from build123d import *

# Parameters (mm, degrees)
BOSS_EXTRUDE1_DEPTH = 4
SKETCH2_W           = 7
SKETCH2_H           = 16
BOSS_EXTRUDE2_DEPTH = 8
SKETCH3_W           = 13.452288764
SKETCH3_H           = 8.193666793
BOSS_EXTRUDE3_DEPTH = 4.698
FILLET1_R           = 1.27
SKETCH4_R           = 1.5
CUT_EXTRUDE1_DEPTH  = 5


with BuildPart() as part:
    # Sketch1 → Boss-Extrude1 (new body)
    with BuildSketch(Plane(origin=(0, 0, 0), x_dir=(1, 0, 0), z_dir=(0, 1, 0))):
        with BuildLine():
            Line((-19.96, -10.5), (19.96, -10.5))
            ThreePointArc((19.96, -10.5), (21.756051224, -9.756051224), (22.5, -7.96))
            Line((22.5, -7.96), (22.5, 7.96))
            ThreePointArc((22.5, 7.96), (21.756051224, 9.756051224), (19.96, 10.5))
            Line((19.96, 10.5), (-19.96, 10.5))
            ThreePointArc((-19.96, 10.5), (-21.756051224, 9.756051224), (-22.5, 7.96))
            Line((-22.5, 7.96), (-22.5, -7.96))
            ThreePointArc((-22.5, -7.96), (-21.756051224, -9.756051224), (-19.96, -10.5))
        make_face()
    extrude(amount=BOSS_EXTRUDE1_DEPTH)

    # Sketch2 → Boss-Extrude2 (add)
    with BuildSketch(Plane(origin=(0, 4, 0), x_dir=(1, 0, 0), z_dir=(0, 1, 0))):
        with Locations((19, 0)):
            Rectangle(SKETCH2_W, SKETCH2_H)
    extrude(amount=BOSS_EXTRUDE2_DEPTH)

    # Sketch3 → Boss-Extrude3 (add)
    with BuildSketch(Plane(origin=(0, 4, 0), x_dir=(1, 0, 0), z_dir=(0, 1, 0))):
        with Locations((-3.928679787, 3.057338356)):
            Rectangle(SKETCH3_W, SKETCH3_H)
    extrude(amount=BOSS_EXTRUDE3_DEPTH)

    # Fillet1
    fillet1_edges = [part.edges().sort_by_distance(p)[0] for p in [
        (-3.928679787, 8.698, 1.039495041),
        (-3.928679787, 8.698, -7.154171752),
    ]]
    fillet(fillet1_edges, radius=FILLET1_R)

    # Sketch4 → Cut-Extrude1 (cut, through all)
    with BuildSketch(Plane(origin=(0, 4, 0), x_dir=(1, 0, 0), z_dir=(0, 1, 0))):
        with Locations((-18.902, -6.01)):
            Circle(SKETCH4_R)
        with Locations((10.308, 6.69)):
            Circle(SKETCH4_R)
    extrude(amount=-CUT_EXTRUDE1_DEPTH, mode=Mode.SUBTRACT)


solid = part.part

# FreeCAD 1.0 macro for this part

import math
import FreeCAD as App
import Part
import Sketcher
from FreeCAD import Vector


def edges_at(feature, points):
    """Names of the edges that pass closest to the given points."""
    edges = feature.Shape.Edges
    near = lambda p: min(range(len(edges)), key=lambda i: edges[i].distToShape(Part.Vertex(*p))[0])
    return sorted({f"Edge{near(p) + 1}" for p in points})


def add_polygon(sketch, points):
    """Adds a closed chain of lines whose ends are joined by coincident constraints."""
    first, n = sketch.GeometryCount, len(points)
    for a, b in zip(points, points[1:] + points[:1]):
        sketch.addGeometry(Part.LineSegment(App.Vector(*a, 0), App.Vector(*b, 0)), False)
    for i in range(n):
        sketch.addConstraint(Sketcher.Constraint("Coincident", first + i, 2, first + (i + 1) % n, 1))

doc = App.newDocument("Part")
body = doc.addObject("PartDesign::Body", "Body")

# Sketch on XZ plane
sketch1 = body.newObject("Sketcher::SketchObject", "Sketch")
sketch1.AttachmentSupport = (doc.getObject("XZ_Plane"), [""])
sketch1.MapMode = "FlatFace"
sketch1.addGeometry([
    Part.LineSegment(Vector(-20, 10.5, 0), Vector(20, 10.5, 0)),  # 0
    Part.ArcOfCircle(Part.Circle(Vector(20, 8, 0), Vector(0, 0, 1), 2.5), math.radians(0), math.radians(90)),  # 1
    Part.LineSegment(Vector(22.5, 8, 0), Vector(22.5, -8, 0)),  # 2
    Part.ArcOfCircle(Part.Circle(Vector(20, -8, 0), Vector(0, 0, 1), 2.5), math.radians(-90), math.radians(0)),  # 3
    Part.LineSegment(Vector(20, -10.5, 0), Vector(-20, -10.5, 0)),  # 4
    Part.ArcOfCircle(Part.Circle(Vector(-20, -8, 0), Vector(0, 0, 1), 2.5), math.radians(-180), math.radians(-90)),  # 5
    Part.LineSegment(Vector(-22.5, -8, 0), Vector(-22.5, 8, 0)),  # 6
    Part.ArcOfCircle(Part.Circle(Vector(-20, 8, 0), Vector(0, 0, 1), 2.5), math.radians(90), math.radians(180)),  # 7
], False)
sketch1.addConstraint([
    Sketcher.Constraint("Tangent", 0, 2, 1, 2),
    Sketcher.Constraint("Tangent", 1, 1, 2, 1),
    Sketcher.Constraint("Tangent", 2, 2, 3, 2),
    Sketcher.Constraint("Tangent", 3, 1, 4, 1),
    Sketcher.Constraint("Tangent", 4, 2, 5, 2),
    Sketcher.Constraint("Tangent", 5, 1, 6, 1),
    Sketcher.Constraint("Tangent", 6, 2, 7, 2),
    Sketcher.Constraint("Tangent", 7, 1, 0, 1),
    Sketcher.Constraint("Horizontal", 0),
    Sketcher.Constraint("Vertical", 2),
    Sketcher.Constraint("Horizontal", 4),
    Sketcher.Constraint("Vertical", 6),
    Sketcher.Constraint("Equal", 1, 3),
    Sketcher.Constraint("Equal", 3, 5),
    Sketcher.Constraint("Equal", 5, 7),
    Sketcher.Constraint("Symmetric", 1, 3, 5, 3, -1, 1),
    Sketcher.Constraint("Radius", 1, 2.54),
    Sketcher.Constraint("DistanceY", 3, 1, 0, 2, 21.0),
    Sketcher.Constraint("DistanceX", 0, 1, 0, 2, 39.92),
])
pad1 = body.newObject("PartDesign::Pad", "Pad")
pad1.Profile = sketch1
pad1.Length = 4
pad1.Reversed = True

# Sketch on XZ plane
sketch2 = body.newObject("Sketcher::SketchObject", "Sketch001")
sketch2.AttachmentSupport = (doc.getObject("XZ_Plane"), [""])
sketch2.MapMode = "FlatFace"
sketch2.AttachmentOffset = App.Placement(Vector(0, 0, -4), App.Rotation())
add_polygon(sketch2, [(16, -8), (16, 8), (22, 8), (22, -8)])  # lines 0-3
sketch2.addConstraint([
    Sketcher.Constraint("Vertical", 0),
    Sketcher.Constraint("Horizontal", 1),
    Sketcher.Constraint("Vertical", 2),
    Sketcher.Constraint("Horizontal", 3),
    Sketcher.Constraint("DistanceX", 1, 1, 1, 2, 7.0),
    Sketcher.Constraint("DistanceY", 0, 1, 0, 2, 16.0),
    Sketcher.Constraint("DistanceY", -1, 1, 0, 2, 8.0),
    Sketcher.Constraint("DistanceX", -1, 1, 0, 2, 15.5),
])
pad2 = body.newObject("PartDesign::Pad", "Pad001")
pad2.Profile = sketch2
pad2.Length = 8
pad2.Reversed = True

# Sketch on XZ plane
sketch3 = body.newObject("Sketcher::SketchObject", "Sketch002")
sketch3.AttachmentSupport = (doc.getObject("XZ_Plane"), [""])
sketch3.MapMode = "FlatFace"
sketch3.AttachmentOffset = App.Placement(Vector(0, 0, -4), App.Rotation())
add_polygon(sketch3, [(-11, -7), (-11, 1), (3, 1), (3, -7)])  # lines 0-3
sketch3.addConstraint([
    Sketcher.Constraint("Vertical", 0),
    Sketcher.Constraint("Horizontal", 1),
    Sketcher.Constraint("Vertical", 2),
    Sketcher.Constraint("Horizontal", 3),
    Sketcher.Constraint("DistanceX", 1, 1, 1, 2, 13.452289),
    Sketcher.Constraint("DistanceY", 0, 1, 0, 2, 8.193667),
    Sketcher.Constraint("DistanceY", 2, 2, -1, 1, 7.154172),
    Sketcher.Constraint("DistanceX", 0, 2, -1, 1, 10.654824),
])
pad3 = body.newObject("PartDesign::Pad", "Pad002")
pad3.Profile = sketch3
pad3.Length = 4.698
pad3.Reversed = True
doc.recompute()

fillet = body.newObject("PartDesign::Fillet", "Fillet")
fillet.Base = (pad3, edges_at(pad3, [(-3.929, 8.698, 1.039), (-3.929, 8.698, -7.154)]))
fillet.Radius = 1.27

# Sketch on XZ plane
sketch4 = body.newObject("Sketcher::SketchObject", "Sketch003")
sketch4.AttachmentSupport = (doc.getObject("XZ_Plane"), [""])
sketch4.MapMode = "FlatFace"
sketch4.AttachmentOffset = App.Placement(Vector(0, 0, -4), App.Rotation())
sketch4.addGeometry([
    Part.Circle(Vector(-18.9, 6, 0), Vector(0, 0, 1), 1.5),
    Part.Circle(Vector(10.3, -6.7, 0), Vector(0, 0, 1), 1.5),
], False)
sketch4.addConstraint([
    Sketcher.Constraint("Equal", 0, 1),
    Sketcher.Constraint("Diameter", 0, 3.0),
    Sketcher.Constraint("DistanceY", 1, 3, 0, 3, 12.7),
    Sketcher.Constraint("DistanceY", -1, 1, 0, 3, 6.01),
    Sketcher.Constraint("DistanceX", 0, 3, 1, 3, 29.21),
    Sketcher.Constraint("DistanceX", 0, 3, -1, 1, 18.902),
])
pocket1 = body.newObject("PartDesign::Pocket", "Pocket")
pocket1.Profile = sketch4
pocket1.Type = "ThroughAll"
pocket1.Reversed = True

doc.recompute()
